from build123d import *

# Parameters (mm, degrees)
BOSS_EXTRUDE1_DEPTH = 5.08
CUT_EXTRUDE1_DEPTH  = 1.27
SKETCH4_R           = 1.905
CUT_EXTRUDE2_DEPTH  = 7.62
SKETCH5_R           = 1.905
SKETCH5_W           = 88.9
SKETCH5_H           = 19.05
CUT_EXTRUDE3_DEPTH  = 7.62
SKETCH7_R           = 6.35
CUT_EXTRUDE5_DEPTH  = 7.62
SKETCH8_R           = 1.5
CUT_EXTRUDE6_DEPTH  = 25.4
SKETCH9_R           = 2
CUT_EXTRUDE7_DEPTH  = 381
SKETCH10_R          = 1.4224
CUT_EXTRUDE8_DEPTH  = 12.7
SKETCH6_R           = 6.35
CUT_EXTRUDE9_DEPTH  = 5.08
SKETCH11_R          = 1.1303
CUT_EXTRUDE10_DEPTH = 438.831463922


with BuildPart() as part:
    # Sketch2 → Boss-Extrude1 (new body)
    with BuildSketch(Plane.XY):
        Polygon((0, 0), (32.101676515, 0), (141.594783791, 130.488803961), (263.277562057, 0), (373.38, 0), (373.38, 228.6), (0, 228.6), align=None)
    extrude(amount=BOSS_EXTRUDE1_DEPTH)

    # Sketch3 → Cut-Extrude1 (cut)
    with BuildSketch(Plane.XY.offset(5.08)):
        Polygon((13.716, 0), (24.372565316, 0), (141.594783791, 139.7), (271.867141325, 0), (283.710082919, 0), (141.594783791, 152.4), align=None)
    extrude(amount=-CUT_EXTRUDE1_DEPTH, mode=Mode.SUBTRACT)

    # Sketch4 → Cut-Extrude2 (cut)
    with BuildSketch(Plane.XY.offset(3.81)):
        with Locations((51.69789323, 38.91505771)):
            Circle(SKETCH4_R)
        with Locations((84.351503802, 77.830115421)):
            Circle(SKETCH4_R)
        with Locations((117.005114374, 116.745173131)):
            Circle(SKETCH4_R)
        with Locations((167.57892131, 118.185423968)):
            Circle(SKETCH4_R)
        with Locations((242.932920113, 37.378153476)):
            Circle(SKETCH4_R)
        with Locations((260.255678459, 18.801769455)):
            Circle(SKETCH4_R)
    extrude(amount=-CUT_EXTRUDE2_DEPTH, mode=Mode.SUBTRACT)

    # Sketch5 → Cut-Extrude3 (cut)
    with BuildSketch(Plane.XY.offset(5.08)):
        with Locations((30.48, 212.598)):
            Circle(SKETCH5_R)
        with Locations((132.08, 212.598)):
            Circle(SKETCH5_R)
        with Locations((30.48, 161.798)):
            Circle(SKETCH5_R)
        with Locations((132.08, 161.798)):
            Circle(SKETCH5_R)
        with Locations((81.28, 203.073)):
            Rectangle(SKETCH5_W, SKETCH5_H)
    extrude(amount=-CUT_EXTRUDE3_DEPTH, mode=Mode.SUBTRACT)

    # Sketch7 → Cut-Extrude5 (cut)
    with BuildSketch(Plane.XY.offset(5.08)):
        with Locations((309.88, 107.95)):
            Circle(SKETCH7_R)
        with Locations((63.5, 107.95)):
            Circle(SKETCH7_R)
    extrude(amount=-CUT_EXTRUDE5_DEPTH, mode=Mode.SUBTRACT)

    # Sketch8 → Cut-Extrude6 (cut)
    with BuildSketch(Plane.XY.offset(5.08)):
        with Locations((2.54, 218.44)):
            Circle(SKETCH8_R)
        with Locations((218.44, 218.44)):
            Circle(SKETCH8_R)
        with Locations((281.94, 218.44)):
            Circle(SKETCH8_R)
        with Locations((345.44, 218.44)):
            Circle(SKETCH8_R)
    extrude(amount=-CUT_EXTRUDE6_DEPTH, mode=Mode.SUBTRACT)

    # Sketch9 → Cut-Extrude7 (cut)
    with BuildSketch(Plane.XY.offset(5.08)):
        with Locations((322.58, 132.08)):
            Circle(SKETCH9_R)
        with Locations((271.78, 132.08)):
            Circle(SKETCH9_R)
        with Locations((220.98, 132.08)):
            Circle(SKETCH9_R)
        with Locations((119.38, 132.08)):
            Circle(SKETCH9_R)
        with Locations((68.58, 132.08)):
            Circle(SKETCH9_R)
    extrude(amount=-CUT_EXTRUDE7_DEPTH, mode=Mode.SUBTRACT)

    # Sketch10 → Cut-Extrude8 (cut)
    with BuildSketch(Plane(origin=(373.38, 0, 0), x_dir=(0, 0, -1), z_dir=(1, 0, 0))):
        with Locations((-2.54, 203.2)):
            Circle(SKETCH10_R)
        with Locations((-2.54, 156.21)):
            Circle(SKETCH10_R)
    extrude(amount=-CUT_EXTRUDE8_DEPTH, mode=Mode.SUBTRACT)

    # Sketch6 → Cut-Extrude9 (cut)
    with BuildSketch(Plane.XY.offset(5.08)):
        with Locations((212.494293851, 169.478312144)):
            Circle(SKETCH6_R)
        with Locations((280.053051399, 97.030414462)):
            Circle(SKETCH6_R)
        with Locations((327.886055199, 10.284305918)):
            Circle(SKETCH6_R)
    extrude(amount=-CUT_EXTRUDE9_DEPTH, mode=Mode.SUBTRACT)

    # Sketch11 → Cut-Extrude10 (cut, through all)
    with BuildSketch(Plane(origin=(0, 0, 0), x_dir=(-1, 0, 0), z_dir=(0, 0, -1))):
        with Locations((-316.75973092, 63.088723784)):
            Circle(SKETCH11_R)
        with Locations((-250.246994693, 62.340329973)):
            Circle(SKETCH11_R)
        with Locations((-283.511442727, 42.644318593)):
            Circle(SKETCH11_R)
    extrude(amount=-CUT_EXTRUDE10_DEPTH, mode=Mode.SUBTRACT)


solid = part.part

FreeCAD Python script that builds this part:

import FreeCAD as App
import Part
import Sketcher
Q = App.Units.Quantity

doc = App.newDocument("Part")
params = doc.addObject("Spreadsheet::Sheet", "Params")
for row, (alias, value) in enumerate([
    ("sketch1_height", "9 in"),
    ("sketch1_width", "14.7 in"),
    ("pad1_length", "0.2 in"),
    ("pocket1_length", "0.05 in"),
    ("sketch3_diameter", "0.15 in"),
    ("pocket2_length", "0.3 in"),
    ("sketch4_diameter", "0.15 in"),
    ("sketch4_width", "3.5 in"),
    ("sketch4_height", "0.75 in"),
    ("pocket3_length", "0.3 in"),
    ("sketch5_diameter", "0.5 in"),
    ("pocket4_length", "0.3 in"),
    ("pocket5_length", "1 in"),
    ("pocket6_length", "15 in"),
    ("sketch8_diameter", "0.112 in"),
    ("pocket7_length", "0.5 in"),
    ("sketch9_diameter", "0.5 in"),
    ("pocket8_length", "0.2 in"),
    ("sketch10_diameter", "0.089 in"),
], start=1):
    params.set(f"A{row}", alias)
    params.set(f"B{row}", "=" + value)
    params.setAlias(f"B{row}", alias)

body = doc.addObject("PartDesign::Body", "Body")

sketch1 = body.newObject("Sketcher::SketchObject", "Sketch")
sketch1.AttachmentSupport = (doc.getObject("XY_Plane"), [""])
sketch1.MapMode = "FlatFace"
sketch1.addGeometry(Part.LineSegment(App.Vector(0, 0, 0), App.Vector(32, 0, 0)), False)
sketch1.addGeometry(Part.LineSegment(App.Vector(32, 0, 0), App.Vector(142, 130, 0)), False)
sketch1.addGeometry(Part.LineSegment(App.Vector(142, 130, 0), App.Vector(263, 0, 0)), False)
sketch1.addGeometry(Part.LineSegment(App.Vector(263, 0, 0), App.Vector(373, 0, 0)), False)
sketch1.addGeometry(Part.LineSegment(App.Vector(373, 0, 0), App.Vector(373, 229, 0)), False)
sketch1.addGeometry(Part.LineSegment(App.Vector(373, 229, 0), App.Vector(0, 229, 0)), False)
sketch1.addGeometry(Part.LineSegment(App.Vector(0, 229, 0), App.Vector(0, 0, 0)), False)
sketch1.addConstraint(Sketcher.Constraint("Coincident", 0, 2, 1, 1))
sketch1.addConstraint(Sketcher.Constraint("Coincident", 1, 2, 2, 1))
sketch1.addConstraint(Sketcher.Constraint("Coincident", 2, 2, 3, 1))
sketch1.addConstraint(Sketcher.Constraint("Coincident", 3, 2, 4, 1))
sketch1.addConstraint(Sketcher.Constraint("Coincident", 4, 2, 5, 1))
sketch1.addConstraint(Sketcher.Constraint("Coincident", 5, 2, 6, 1))
sketch1.addConstraint(Sketcher.Constraint("Coincident", 6, 2, 0, 1))
sketch1.addConstraint(Sketcher.Constraint("Horizontal", 0))
sketch1.addConstraint(Sketcher.Constraint("Horizontal", 3))
sketch1.addConstraint(Sketcher.Constraint("Vertical", 4))
sketch1.addConstraint(Sketcher.Constraint("Horizontal", 5))
sketch1.addConstraint(Sketcher.Constraint("Vertical", 6))
sketch1.addConstraint(Sketcher.Constraint("Coincident", 6, 2, -1, 1))
sketch1.addConstraint(Sketcher.Constraint("PointOnObject", 2, 2, -1))
sketch1.addConstraint(Sketcher.Constraint("DistanceY", 4, 1, 4, 2, Q("9 in")))
sketch1.addConstraint(Sketcher.Constraint("DistanceX", 5, 2, 5, 1, Q("14.7 in")))
sketch1.addConstraint(Sketcher.Constraint("Angle", 1, Q("50 deg")))
sketch1.addConstraint(Sketcher.Constraint("Angle", 2, Q("-47 deg")))
sketch1.addConstraint(Sketcher.Constraint("DistanceX", 0, 1, 0, 2, 32.101677))
sketch1.addConstraint(Sketcher.Constraint("DistanceX", 3, 1, 3, 2, 110.102438))
sketch1.setExpression("Constraints[14]", "Params.sketch1_height")
sketch1.setExpression("Constraints[15]", "Params.sketch1_width")
pad1 = body.newObject("PartDesign::Pad", "Pad")
pad1.Profile = sketch1
pad1.setExpression("Length", "Params.pad1_length")

sketch2 = body.newObject("Sketcher::SketchObject", "Sketch001")
sketch2.AttachmentSupport = (doc.getObject("XY_Plane"), [""])
sketch2.MapMode = "FlatFace"
sketch2.AttachmentOffset = App.Placement(App.Vector(0, 0, 0.2 * 25.4), App.Rotation())
sketch2.addGeometry(Part.LineSegment(App.Vector(14, 0, 0), App.Vector(24, 0, 0)), False)
sketch2.addGeometry(Part.LineSegment(App.Vector(24, 0, 0), App.Vector(142, 140, 0)), False)
sketch2.addGeometry(Part.LineSegment(App.Vector(142, 140, 0), App.Vector(272, 0, 0)), False)
sketch2.addGeometry(Part.LineSegment(App.Vector(272, 0, 0), App.Vector(284, 0, 0)), False)
sketch2.addGeometry(Part.LineSegment(App.Vector(284, 0, 0), App.Vector(142, 152, 0)), False)
sketch2.addGeometry(Part.LineSegment(App.Vector(142, 152, 0), App.Vector(14, 0, 0)), False)
sketch2.addConstraint(Sketcher.Constraint("Coincident", 0, 2, 1, 1))
sketch2.addConstraint(Sketcher.Constraint("Coincident", 1, 2, 2, 1))
sketch2.addConstraint(Sketcher.Constraint("Coincident", 2, 2, 3, 1))
sketch2.addConstraint(Sketcher.Constraint("Coincident", 3, 2, 4, 1))
sketch2.addConstraint(Sketcher.Constraint("Coincident", 4, 2, 5, 1))
sketch2.addConstraint(Sketcher.Constraint("Coincident", 5, 2, 0, 1))
sketch2.addConstraint(Sketcher.Constraint("Horizontal", 0))
sketch2.addConstraint(Sketcher.Constraint("Horizontal", 3))
sketch2.addConstraint(Sketcher.Constraint("PointOnObject", 0, 2, -1))
sketch2.addConstraint(Sketcher.Constraint("PointOnObject", 2, 2, -1))
sketch2.addConstraint(Sketcher.Constraint("Parallel", 2, 4))
sketch2.addConstraint(Sketcher.Constraint("Parallel", 1, 5))
sketch2.addConstraint(Sketcher.Constraint("Vertical", 1, 2, 4, 2))
sketch2.addConstraint(Sketcher.Constraint("DistanceY", -1, 1, 4, 2, Q("6 in")))
sketch2.addConstraint(Sketcher.Constraint("Angle", 1, Q("50 deg")))
sketch2.addConstraint(Sketcher.Constraint("Angle", 2, Q("-47 deg")))
sketch2.addConstraint(Sketcher.Constraint("DistanceY", -1, 1, 1, 2, Q("5.5 in")))
sketch2.addConstraint(Sketcher.Constraint("DistanceX", -1, 1, 5, 2, Q("0.54 in")))
pocket1 = body.newObject("PartDesign::Pocket", "Pocket")
pocket1.Profile = sketch2
pocket1.setExpression("Length", "Params.pocket1_length")

sketch3 = body.newObject("Sketcher::SketchObject", "Sketch002")
sketch3.AttachmentSupport = (doc.getObject("XY_Plane"), [""])
sketch3.MapMode = "FlatFace"
sketch3.AttachmentOffset = App.Placement(App.Vector(0, 0, 0.15 * 25.4), App.Rotation())
sketch3.addGeometry(Part.Circle(App.Vector(51.7, 38.9, 0), App.Vector(0, 0, 1), 1.9), False)
sketch3.addGeometry(Part.Circle(App.Vector(84.4, 77.8, 0), App.Vector(0, 0, 1), 1.9), False)
sketch3.addGeometry(Part.Circle(App.Vector(117, 116.7, 0), App.Vector(0, 0, 1), 1.9), False)
sketch3.addGeometry(Part.Circle(App.Vector(167.6, 118.2, 0), App.Vector(0, 0, 1), 1.9), False)
sketch3.addGeometry(Part.Circle(App.Vector(242.9, 37.4, 0), App.Vector(0, 0, 1), 1.9), False)
sketch3.addGeometry(Part.Circle(App.Vector(260.3, 18.8, 0), App.Vector(0, 0, 1), 1.9), False)
sketch3.addConstraint(Sketcher.Constraint("Equal", 0, 1))
sketch3.addConstraint(Sketcher.Constraint("Equal", 1, 2))
sketch3.addConstraint(Sketcher.Constraint("Equal", 2, 3))
sketch3.addConstraint(Sketcher.Constraint("Equal", 3, 4))
sketch3.addConstraint(Sketcher.Constraint("Equal", 4, 5))
sketch3.addConstraint(Sketcher.Constraint("Diameter", 0, Q("0.15 in")))
sketch3.addConstraint(Sketcher.Constraint("DistanceX", 3, 3, 4, 3, 75.353999))
sketch3.addConstraint(Sketcher.Constraint("DistanceX", -1, 1, 3, 3, 167.578921))
sketch3.addConstraint(Sketcher.Constraint("DistanceX", -1, 1, 5, 3, 260.255678))
sketch3.addConstraint(Sketcher.Constraint("DistanceY", -1, 1, 5, 3, 18.801769))
sketch3.addConstraint(Sketcher.Constraint("DistanceX", 0, 3, 1, 3, 32.653611))
sketch3.addConstraint(Sketcher.Constraint("DistanceX", 1, 3, 2, 3, 32.653611))
sketch3.addConstraint(Sketcher.Constraint("DistanceY", 2, 3, 3, 3, 1.440251))
sketch3.addConstraint(Sketcher.Constraint("DistanceY", 1, 3, 3, 3, 40.355309))
sketch3.addConstraint(Sketcher.Constraint("DistanceX", 0, 3, 3, 3, 115.881028))
sketch3.addConstraint(Sketcher.Constraint("DistanceY", 4, 3, 3, 3, 80.80727))
sketch3.addConstraint(Sketcher.Constraint("DistanceY", 5, 3, 0, 3, 20.113288))
sketch3.addConstraint(Sketcher.Constraint("DistanceY", -1, 1, 1, 3, 77.830115))
sketch3.setExpression("Constraints[5]", "Params.sketch3_diameter")
pocket2 = body.newObject("PartDesign::Pocket", "Pocket001")
pocket2.Profile = sketch3
pocket2.setExpression("Length", "Params.pocket2_length")

sketch4 = body.newObject("Sketcher::SketchObject", "Sketch003")
sketch4.AttachmentSupport = (doc.getObject("XY_Plane"), [""])
sketch4.MapMode = "FlatFace"
sketch4.AttachmentOffset = App.Placement(App.Vector(0, 0, 0.2 * 25.4), App.Rotation())
sketch4.addGeometry(Part.Circle(App.Vector(30.5, 212.6, 0), App.Vector(0, 0, 1), 1.9), False)
sketch4.addGeometry(Part.Circle(App.Vector(132.1, 212.6, 0), App.Vector(0, 0, 1), 1.9), False)
sketch4.addGeometry(Part.Circle(App.Vector(30.5, 161.8, 0), App.Vector(0, 0, 1), 1.9), False)
sketch4.addGeometry(Part.Circle(App.Vector(132.1, 161.8, 0), App.Vector(0, 0, 1), 1.9), False)
sketch4.addGeometry(Part.LineSegment(App.Vector(36.8, 212.6, 0), App.Vector(36.8, 193.5, 0)), False)
sketch4.addGeometry(Part.LineSegment(App.Vector(36.8, 193.5, 0), App.Vector(125.7, 193.5, 0)), False)
sketch4.addGeometry(Part.LineSegment(App.Vector(125.7, 193.5, 0), App.Vector(125.7, 212.6, 0)), False)
sketch4.addGeometry(Part.LineSegment(App.Vector(125.7, 212.6, 0), App.Vector(36.8, 212.6, 0)), False)
sketch4.addConstraint(Sketcher.Constraint("Coincident", 4, 2, 5, 1))
sketch4.addConstraint(Sketcher.Constraint("Coincident", 5, 2, 6, 1))
sketch4.addConstraint(Sketcher.Constraint("Coincident", 6, 2, 7, 1))
sketch4.addConstraint(Sketcher.Constraint("Coincident", 7, 2, 4, 1))
sketch4.addConstraint(Sketcher.Constraint("Vertical", 4))
sketch4.addConstraint(Sketcher.Constraint("Horizontal", 5))
sketch4.addConstraint(Sketcher.Constraint("Vertical", 6))
sketch4.addConstraint(Sketcher.Constraint("Horizontal", 7))
sketch4.addConstraint(Sketcher.Constraint("Equal", 0, 1))
sketch4.addConstraint(Sketcher.Constraint("Equal", 1, 2))
sketch4.addConstraint(Sketcher.Constraint("Equal", 2, 3))
sketch4.addConstraint(Sketcher.Constraint("Horizontal", 0, 3, 1, 3))
sketch4.addConstraint(Sketcher.Constraint("Horizontal", 2, 3, 3, 3))
sketch4.addConstraint(Sketcher.Constraint("Horizontal", 1, 3, 6, 2))
sketch4.addConstraint(Sketcher.Constraint("Vertical", 0, 3, 2, 3))
sketch4.addConstraint(Sketcher.Constraint("Vertical", 1, 3, 3, 3))
sketch4.addConstraint(Sketcher.Constraint("Diameter", 0, Q("0.15 in")))
sketch4.addConstraint(Sketcher.Constraint("DistanceX", 5, 1, 5, 2, Q("3.5 in")))
sketch4.addConstraint(Sketcher.Constraint("DistanceX", 0, 3, 1, 3, Q("4 in")))
sketch4.addConstraint(Sketcher.Constraint("DistanceY", 2, 3, 0, 3, Q("2 in")))
sketch4.addConstraint(Sketcher.Constraint("DistanceY", 4, 2, 4, 1, Q("0.75 in")))
sketch4.addConstraint(Sketcher.Constraint("DistanceX", -1, 1, 0, 3, Q("1.2 in")))
sketch4.addConstraint(Sketcher.Constraint("DistanceY", -1, 1, 0, 3, Q("8.37 in")))
sketch4.addConstraint(Sketcher.Constraint("DistanceX", -1, 1, 4, 2, Q("1.45 in")))
sketch4.setExpression("Constraints[16]", "Params.sketch4_diameter")
sketch4.setExpression("Constraints[17]", "Params.sketch4_width")
sketch4.setExpression("Constraints[20]", "Params.sketch4_height")
pocket3 = body.newObject("PartDesign::Pocket", "Pocket002")
pocket3.Profile = sketch4
pocket3.setExpression("Length", "Params.pocket3_length")

sketch5 = body.newObject("Sketcher::SketchObject", "Sketch004")
sketch5.AttachmentSupport = (doc.getObject("XY_Plane"), [""])
sketch5.MapMode = "FlatFace"
sketch5.AttachmentOffset = App.Placement(App.Vector(0, 0, 0.2 * 25.4), App.Rotation())
sketch5.addGeometry(Part.Circle(App.Vector(310, 108, 0), App.Vector(0, 0, 1), 6), False)
sketch5.addGeometry(Part.Circle(App.Vector(64, 108, 0), App.Vector(0, 0, 1), 6), False)
sketch5.addConstraint(Sketcher.Constraint("Equal", 0, 1))
sketch5.addConstraint(Sketcher.Constraint("Horizontal", 0, 3, 1, 3))
sketch5.addConstraint(Sketcher.Constraint("Diameter", 0, Q("0.5 in")))
sketch5.addConstraint(Sketcher.Constraint("DistanceX", -1, 1, 0, 3, Q("12.2 in")))
sketch5.addConstraint(Sketcher.Constraint("DistanceX", -1, 1, 1, 3, Q("2.5 in")))
sketch5.addConstraint(Sketcher.Constraint("DistanceY", -1, 1, 0, 3, Q("4.25 in")))
sketch5.setExpression("Constraints[2]", "Params.sketch5_diameter")
pocket4 = body.newObject("PartDesign::Pocket", "Pocket003")
pocket4.Profile = sketch5
pocket4.setExpression("Length", "Params.pocket4_length")

sketch6 = body.newObject("Sketcher::SketchObject", "Sketch005")
sketch6.AttachmentSupport = (doc.getObject("XY_Plane"), [""])
sketch6.MapMode = "FlatFace"
sketch6.AttachmentOffset = App.Placement(App.Vector(0, 0, 0.2 * 25.4), App.Rotation())
sketch6.addGeometry(Part.Circle(App.Vector(2.5, 218.4, 0), App.Vector(0, 0, 1), 1.5), False)
sketch6.addGeometry(Part.Circle(App.Vector(218.4, 218.4, 0), App.Vector(0, 0, 1), 1.5), False)
sketch6.addGeometry(Part.Circle(App.Vector(281.9, 218.4, 0), App.Vector(0, 0, 1), 1.5), False)
sketch6.addGeometry(Part.Circle(App.Vector(345.4, 218.4, 0), App.Vector(0, 0, 1), 1.5), False)
sketch6.addConstraint(Sketcher.Constraint("Equal", 0, 1))
sketch6.addConstraint(Sketcher.Constraint("Equal", 1, 2))
sketch6.addConstraint(Sketcher.Constraint("Equal", 2, 3))
sketch6.addConstraint(Sketcher.Constraint("Horizontal", 0, 3, 1, 3))
sketch6.addConstraint(Sketcher.Constraint("Horizontal", 1, 3, 2, 3))
sketch6.addConstraint(Sketcher.Constraint("Horizontal", 2, 3, 3, 3))
sketch6.addConstraint(Sketcher.Constraint("DistanceX", 0, 3, 2, 3, Q("11 in")))
sketch6.addConstraint(Sketcher.Constraint("DistanceX", 1, 3, 3, 3, Q("5 in")))
sketch6.addConstraint(Sketcher.Constraint("DistanceX", -1, 1, 0, 3, Q("0.1 in")))
sketch6.addConstraint(Sketcher.Constraint("DistanceY", -1, 1, 0, 3, Q("8.6 in")))
sketch6.addConstraint(Sketcher.Constraint("DistanceX", -1, 1, 1, 3, Q("8.6 in")))
sketch6.addConstraint(Sketcher.Constraint("Diameter", 0, 3.0))
pocket5 = body.newObject("PartDesign::Pocket", "Pocket004")
pocket5.Profile = sketch6
pocket5.setExpression("Length", "Params.pocket5_length")

sketch7 = body.newObject("Sketcher::SketchObject", "Sketch006")
sketch7.AttachmentSupport = (doc.getObject("XY_Plane"), [""])
sketch7.MapMode = "FlatFace"
sketch7.AttachmentOffset = App.Placement(App.Vector(0, 0, 0.2 * 25.4), App.Rotation())
sketch7.addGeometry(Part.Circle(App.Vector(322.6, 132.1, 0), App.Vector(0, 0, 1), 2), False)
sketch7.addGeometry(Part.Circle(App.Vector(271.8, 132.1, 0), App.Vector(0, 0, 1), 2), False)
sketch7.addGeometry(Part.Circle(App.Vector(221, 132.1, 0), App.Vector(0, 0, 1), 2), False)
sketch7.addGeometry(Part.Circle(App.Vector(119.4, 132.1, 0), App.Vector(0, 0, 1), 2), False)
sketch7.addGeometry(Part.Circle(App.Vector(68.6, 132.1, 0), App.Vector(0, 0, 1), 2), False)
sketch7.addConstraint(Sketcher.Constraint("Equal", 0, 1))
sketch7.addConstraint(Sketcher.Constraint("Equal", 1, 2))
sketch7.addConstraint(Sketcher.Constraint("Equal", 2, 3))
sketch7.addConstraint(Sketcher.Constraint("Equal", 3, 4))
sketch7.addConstraint(Sketcher.Constraint("Horizontal", 0, 3, 1, 3))
sketch7.addConstraint(Sketcher.Constraint("Horizontal", 1, 3, 2, 3))
sketch7.addConstraint(Sketcher.Constraint("Horizontal", 2, 3, 3, 3))
sketch7.addConstraint(Sketcher.Constraint("Horizontal", 3, 3, 4, 3))
sketch7.addConstraint(Sketcher.Constraint("DistanceX", 1, 3, 0, 3, Q("2 in")))
sketch7.addConstraint(Sketcher.Constraint("DistanceX", 2, 3, 1, 3, Q("2 in")))
sketch7.addConstraint(Sketcher.Constraint("DistanceX", 3, 3, 2, 3, Q("4 in")))
sketch7.addConstraint(Sketcher.Constraint("DistanceX", 4, 3, 3, 3, Q("2 in")))
sketch7.addConstraint(Sketcher.Constraint("DistanceX", -1, 1, 0, 3, Q("12.7 in")))
sketch7.addConstraint(Sketcher.Constraint("DistanceY", -1, 1, 0, 3, Q("5.2 in")))
sketch7.addConstraint(Sketcher.Constraint("Diameter", 0, 4.0))
pocket6 = body.newObject("PartDesign::Pocket", "Pocket005")
pocket6.Profile = sketch7
pocket6.setExpression("Length", "Params.pocket6_length")

sketch8 = body.newObject("Sketcher::SketchObject", "Sketch007")
sketch8.AttachmentSupport = (doc.getObject("YZ_Plane"), [""])
sketch8.MapMode = "FlatFace"
sketch8.AttachmentOffset = App.Placement(App.Vector(0, 0, 14.7 * 25.4), App.Rotation())
sketch8.addGeometry(Part.Circle(App.Vector(203.2, 2.5, 0), App.Vector(0, 0, 1), 1.4), False)
sketch8.addGeometry(Part.Circle(App.Vector(156.2, 2.5, 0), App.Vector(0, 0, 1), 1.4), False)
sketch8.addConstraint(Sketcher.Constraint("Equal", 0, 1))
sketch8.addConstraint(Sketcher.Constraint("Horizontal", 0, 3, 1, 3))
sketch8.addConstraint(Sketcher.Constraint("Diameter", 0, Q("0.112 in")))
sketch8.addConstraint(Sketcher.Constraint("DistanceX", -1, 1, 0, 3, Q("8 in")))
sketch8.addConstraint(Sketcher.Constraint("DistanceY", -1, 1, 0, 3, Q("0.1 in")))
sketch8.addConstraint(Sketcher.Constraint("DistanceX", -1, 1, 1, 3, Q("6.15 in")))
sketch8.setExpression("Constraints[2]", "Params.sketch8_diameter")
pocket7 = body.newObject("PartDesign::Pocket", "Pocket006")
pocket7.Profile = sketch8
pocket7.setExpression("Length", "Params.pocket7_length")

sketch9 = body.newObject("Sketcher::SketchObject", "Sketch008")
sketch9.AttachmentSupport = (doc.getObject("XY_Plane"), [""])
sketch9.MapMode = "FlatFace"
sketch9.AttachmentOffset = App.Placement(App.Vector(0, 0, 0.2 * 25.4), App.Rotation())
sketch9.addGeometry(Part.Circle(App.Vector(212, 169, 0), App.Vector(0, 0, 1), 6), False)
sketch9.addGeometry(Part.Circle(App.Vector(280, 97, 0), App.Vector(0, 0, 1), 6), False)
sketch9.addGeometry(Part.Circle(App.Vector(328, 10, 0), App.Vector(0, 0, 1), 6), False)
sketch9.addConstraint(Sketcher.Constraint("Equal", 0, 1))
sketch9.addConstraint(Sketcher.Constraint("Equal", 1, 2))
sketch9.addConstraint(Sketcher.Constraint("Diameter", 0, Q("0.5 in")))
sketch9.addConstraint(Sketcher.Constraint("DistanceX", -1, 1, 2, 3, Q("12.9088998 in")))
sketch9.addConstraint(Sketcher.Constraint("DistanceX", -1, 1, 1, 3, 280.053051))
sketch9.addConstraint(Sketcher.Constraint("DistanceY", 2, 3, 1, 3, 86.746109))
sketch9.addConstraint(Sketcher.Constraint("DistanceX", 0, 3, 2, 3, 115.391761))
sketch9.addConstraint(Sketcher.Constraint("DistanceY", -1, 1, 0, 3, 169.478312))
sketch9.addConstraint(Sketcher.Constraint("DistanceY", -1, 1, 1, 3, 97.030414))
sketch9.setExpression("Constraints[2]", "Params.sketch9_diameter")
pocket8 = body.newObject("PartDesign::Pocket", "Pocket007")
pocket8.Profile = sketch9
pocket8.setExpression("Length", "Params.pocket8_length")

sketch10 = body.newObject("Sketcher::SketchObject", "Sketch009")
sketch10.AttachmentSupport = (doc.getObject("XY_Plane"), [""])
sketch10.MapMode = "FlatFace"
sketch10.addGeometry(Part.Circle(App.Vector(316.8, 63.1, 0), App.Vector(0, 0, 1), 1.1), False)
sketch10.addGeometry(Part.Circle(App.Vector(250.2, 62.3, 0), App.Vector(0, 0, 1), 1.1), False)
sketch10.addGeometry(Part.Circle(App.Vector(283.5, 42.6, 0), App.Vector(0, 0, 1), 1.1), False)
sketch10.addConstraint(Sketcher.Constraint("Equal", 0, 1))
sketch10.addConstraint(Sketcher.Constraint("Equal", 1, 2))
sketch10.addConstraint(Sketcher.Constraint("Diameter", 0, Q("0.089 in")))
sketch10.addConstraint(Sketcher.Constraint("DistanceX", -1, 1, 0, 3, 316.759731))
sketch10.addConstraint(Sketcher.Constraint("DistanceY", -1, 1, 1, 3, 62.34033))
sketch10.addConstraint(Sketcher.Constraint("DistanceY", -1, 1, 2, 3, 42.644319))
sketch10.addConstraint(Sketcher.Constraint("DistanceX", 1, 3, 2, 3, 33.264448))
sketch10.addConstraint(Sketcher.Constraint("DistanceX", 2, 3, 0, 3, 33.248288))
sketch10.addConstraint(Sketcher.Constraint("DistanceY", -1, 1, 0, 3, 63.088724))
sketch10.setExpression("Constraints[2]", "Params.sketch10_diameter")
pocket9 = body.newObject("PartDesign::Pocket", "Pocket008")
pocket9.Profile = sketch10
pocket9.Type = "ThroughAll"
pocket9.Reversed = True

doc.recompute()
